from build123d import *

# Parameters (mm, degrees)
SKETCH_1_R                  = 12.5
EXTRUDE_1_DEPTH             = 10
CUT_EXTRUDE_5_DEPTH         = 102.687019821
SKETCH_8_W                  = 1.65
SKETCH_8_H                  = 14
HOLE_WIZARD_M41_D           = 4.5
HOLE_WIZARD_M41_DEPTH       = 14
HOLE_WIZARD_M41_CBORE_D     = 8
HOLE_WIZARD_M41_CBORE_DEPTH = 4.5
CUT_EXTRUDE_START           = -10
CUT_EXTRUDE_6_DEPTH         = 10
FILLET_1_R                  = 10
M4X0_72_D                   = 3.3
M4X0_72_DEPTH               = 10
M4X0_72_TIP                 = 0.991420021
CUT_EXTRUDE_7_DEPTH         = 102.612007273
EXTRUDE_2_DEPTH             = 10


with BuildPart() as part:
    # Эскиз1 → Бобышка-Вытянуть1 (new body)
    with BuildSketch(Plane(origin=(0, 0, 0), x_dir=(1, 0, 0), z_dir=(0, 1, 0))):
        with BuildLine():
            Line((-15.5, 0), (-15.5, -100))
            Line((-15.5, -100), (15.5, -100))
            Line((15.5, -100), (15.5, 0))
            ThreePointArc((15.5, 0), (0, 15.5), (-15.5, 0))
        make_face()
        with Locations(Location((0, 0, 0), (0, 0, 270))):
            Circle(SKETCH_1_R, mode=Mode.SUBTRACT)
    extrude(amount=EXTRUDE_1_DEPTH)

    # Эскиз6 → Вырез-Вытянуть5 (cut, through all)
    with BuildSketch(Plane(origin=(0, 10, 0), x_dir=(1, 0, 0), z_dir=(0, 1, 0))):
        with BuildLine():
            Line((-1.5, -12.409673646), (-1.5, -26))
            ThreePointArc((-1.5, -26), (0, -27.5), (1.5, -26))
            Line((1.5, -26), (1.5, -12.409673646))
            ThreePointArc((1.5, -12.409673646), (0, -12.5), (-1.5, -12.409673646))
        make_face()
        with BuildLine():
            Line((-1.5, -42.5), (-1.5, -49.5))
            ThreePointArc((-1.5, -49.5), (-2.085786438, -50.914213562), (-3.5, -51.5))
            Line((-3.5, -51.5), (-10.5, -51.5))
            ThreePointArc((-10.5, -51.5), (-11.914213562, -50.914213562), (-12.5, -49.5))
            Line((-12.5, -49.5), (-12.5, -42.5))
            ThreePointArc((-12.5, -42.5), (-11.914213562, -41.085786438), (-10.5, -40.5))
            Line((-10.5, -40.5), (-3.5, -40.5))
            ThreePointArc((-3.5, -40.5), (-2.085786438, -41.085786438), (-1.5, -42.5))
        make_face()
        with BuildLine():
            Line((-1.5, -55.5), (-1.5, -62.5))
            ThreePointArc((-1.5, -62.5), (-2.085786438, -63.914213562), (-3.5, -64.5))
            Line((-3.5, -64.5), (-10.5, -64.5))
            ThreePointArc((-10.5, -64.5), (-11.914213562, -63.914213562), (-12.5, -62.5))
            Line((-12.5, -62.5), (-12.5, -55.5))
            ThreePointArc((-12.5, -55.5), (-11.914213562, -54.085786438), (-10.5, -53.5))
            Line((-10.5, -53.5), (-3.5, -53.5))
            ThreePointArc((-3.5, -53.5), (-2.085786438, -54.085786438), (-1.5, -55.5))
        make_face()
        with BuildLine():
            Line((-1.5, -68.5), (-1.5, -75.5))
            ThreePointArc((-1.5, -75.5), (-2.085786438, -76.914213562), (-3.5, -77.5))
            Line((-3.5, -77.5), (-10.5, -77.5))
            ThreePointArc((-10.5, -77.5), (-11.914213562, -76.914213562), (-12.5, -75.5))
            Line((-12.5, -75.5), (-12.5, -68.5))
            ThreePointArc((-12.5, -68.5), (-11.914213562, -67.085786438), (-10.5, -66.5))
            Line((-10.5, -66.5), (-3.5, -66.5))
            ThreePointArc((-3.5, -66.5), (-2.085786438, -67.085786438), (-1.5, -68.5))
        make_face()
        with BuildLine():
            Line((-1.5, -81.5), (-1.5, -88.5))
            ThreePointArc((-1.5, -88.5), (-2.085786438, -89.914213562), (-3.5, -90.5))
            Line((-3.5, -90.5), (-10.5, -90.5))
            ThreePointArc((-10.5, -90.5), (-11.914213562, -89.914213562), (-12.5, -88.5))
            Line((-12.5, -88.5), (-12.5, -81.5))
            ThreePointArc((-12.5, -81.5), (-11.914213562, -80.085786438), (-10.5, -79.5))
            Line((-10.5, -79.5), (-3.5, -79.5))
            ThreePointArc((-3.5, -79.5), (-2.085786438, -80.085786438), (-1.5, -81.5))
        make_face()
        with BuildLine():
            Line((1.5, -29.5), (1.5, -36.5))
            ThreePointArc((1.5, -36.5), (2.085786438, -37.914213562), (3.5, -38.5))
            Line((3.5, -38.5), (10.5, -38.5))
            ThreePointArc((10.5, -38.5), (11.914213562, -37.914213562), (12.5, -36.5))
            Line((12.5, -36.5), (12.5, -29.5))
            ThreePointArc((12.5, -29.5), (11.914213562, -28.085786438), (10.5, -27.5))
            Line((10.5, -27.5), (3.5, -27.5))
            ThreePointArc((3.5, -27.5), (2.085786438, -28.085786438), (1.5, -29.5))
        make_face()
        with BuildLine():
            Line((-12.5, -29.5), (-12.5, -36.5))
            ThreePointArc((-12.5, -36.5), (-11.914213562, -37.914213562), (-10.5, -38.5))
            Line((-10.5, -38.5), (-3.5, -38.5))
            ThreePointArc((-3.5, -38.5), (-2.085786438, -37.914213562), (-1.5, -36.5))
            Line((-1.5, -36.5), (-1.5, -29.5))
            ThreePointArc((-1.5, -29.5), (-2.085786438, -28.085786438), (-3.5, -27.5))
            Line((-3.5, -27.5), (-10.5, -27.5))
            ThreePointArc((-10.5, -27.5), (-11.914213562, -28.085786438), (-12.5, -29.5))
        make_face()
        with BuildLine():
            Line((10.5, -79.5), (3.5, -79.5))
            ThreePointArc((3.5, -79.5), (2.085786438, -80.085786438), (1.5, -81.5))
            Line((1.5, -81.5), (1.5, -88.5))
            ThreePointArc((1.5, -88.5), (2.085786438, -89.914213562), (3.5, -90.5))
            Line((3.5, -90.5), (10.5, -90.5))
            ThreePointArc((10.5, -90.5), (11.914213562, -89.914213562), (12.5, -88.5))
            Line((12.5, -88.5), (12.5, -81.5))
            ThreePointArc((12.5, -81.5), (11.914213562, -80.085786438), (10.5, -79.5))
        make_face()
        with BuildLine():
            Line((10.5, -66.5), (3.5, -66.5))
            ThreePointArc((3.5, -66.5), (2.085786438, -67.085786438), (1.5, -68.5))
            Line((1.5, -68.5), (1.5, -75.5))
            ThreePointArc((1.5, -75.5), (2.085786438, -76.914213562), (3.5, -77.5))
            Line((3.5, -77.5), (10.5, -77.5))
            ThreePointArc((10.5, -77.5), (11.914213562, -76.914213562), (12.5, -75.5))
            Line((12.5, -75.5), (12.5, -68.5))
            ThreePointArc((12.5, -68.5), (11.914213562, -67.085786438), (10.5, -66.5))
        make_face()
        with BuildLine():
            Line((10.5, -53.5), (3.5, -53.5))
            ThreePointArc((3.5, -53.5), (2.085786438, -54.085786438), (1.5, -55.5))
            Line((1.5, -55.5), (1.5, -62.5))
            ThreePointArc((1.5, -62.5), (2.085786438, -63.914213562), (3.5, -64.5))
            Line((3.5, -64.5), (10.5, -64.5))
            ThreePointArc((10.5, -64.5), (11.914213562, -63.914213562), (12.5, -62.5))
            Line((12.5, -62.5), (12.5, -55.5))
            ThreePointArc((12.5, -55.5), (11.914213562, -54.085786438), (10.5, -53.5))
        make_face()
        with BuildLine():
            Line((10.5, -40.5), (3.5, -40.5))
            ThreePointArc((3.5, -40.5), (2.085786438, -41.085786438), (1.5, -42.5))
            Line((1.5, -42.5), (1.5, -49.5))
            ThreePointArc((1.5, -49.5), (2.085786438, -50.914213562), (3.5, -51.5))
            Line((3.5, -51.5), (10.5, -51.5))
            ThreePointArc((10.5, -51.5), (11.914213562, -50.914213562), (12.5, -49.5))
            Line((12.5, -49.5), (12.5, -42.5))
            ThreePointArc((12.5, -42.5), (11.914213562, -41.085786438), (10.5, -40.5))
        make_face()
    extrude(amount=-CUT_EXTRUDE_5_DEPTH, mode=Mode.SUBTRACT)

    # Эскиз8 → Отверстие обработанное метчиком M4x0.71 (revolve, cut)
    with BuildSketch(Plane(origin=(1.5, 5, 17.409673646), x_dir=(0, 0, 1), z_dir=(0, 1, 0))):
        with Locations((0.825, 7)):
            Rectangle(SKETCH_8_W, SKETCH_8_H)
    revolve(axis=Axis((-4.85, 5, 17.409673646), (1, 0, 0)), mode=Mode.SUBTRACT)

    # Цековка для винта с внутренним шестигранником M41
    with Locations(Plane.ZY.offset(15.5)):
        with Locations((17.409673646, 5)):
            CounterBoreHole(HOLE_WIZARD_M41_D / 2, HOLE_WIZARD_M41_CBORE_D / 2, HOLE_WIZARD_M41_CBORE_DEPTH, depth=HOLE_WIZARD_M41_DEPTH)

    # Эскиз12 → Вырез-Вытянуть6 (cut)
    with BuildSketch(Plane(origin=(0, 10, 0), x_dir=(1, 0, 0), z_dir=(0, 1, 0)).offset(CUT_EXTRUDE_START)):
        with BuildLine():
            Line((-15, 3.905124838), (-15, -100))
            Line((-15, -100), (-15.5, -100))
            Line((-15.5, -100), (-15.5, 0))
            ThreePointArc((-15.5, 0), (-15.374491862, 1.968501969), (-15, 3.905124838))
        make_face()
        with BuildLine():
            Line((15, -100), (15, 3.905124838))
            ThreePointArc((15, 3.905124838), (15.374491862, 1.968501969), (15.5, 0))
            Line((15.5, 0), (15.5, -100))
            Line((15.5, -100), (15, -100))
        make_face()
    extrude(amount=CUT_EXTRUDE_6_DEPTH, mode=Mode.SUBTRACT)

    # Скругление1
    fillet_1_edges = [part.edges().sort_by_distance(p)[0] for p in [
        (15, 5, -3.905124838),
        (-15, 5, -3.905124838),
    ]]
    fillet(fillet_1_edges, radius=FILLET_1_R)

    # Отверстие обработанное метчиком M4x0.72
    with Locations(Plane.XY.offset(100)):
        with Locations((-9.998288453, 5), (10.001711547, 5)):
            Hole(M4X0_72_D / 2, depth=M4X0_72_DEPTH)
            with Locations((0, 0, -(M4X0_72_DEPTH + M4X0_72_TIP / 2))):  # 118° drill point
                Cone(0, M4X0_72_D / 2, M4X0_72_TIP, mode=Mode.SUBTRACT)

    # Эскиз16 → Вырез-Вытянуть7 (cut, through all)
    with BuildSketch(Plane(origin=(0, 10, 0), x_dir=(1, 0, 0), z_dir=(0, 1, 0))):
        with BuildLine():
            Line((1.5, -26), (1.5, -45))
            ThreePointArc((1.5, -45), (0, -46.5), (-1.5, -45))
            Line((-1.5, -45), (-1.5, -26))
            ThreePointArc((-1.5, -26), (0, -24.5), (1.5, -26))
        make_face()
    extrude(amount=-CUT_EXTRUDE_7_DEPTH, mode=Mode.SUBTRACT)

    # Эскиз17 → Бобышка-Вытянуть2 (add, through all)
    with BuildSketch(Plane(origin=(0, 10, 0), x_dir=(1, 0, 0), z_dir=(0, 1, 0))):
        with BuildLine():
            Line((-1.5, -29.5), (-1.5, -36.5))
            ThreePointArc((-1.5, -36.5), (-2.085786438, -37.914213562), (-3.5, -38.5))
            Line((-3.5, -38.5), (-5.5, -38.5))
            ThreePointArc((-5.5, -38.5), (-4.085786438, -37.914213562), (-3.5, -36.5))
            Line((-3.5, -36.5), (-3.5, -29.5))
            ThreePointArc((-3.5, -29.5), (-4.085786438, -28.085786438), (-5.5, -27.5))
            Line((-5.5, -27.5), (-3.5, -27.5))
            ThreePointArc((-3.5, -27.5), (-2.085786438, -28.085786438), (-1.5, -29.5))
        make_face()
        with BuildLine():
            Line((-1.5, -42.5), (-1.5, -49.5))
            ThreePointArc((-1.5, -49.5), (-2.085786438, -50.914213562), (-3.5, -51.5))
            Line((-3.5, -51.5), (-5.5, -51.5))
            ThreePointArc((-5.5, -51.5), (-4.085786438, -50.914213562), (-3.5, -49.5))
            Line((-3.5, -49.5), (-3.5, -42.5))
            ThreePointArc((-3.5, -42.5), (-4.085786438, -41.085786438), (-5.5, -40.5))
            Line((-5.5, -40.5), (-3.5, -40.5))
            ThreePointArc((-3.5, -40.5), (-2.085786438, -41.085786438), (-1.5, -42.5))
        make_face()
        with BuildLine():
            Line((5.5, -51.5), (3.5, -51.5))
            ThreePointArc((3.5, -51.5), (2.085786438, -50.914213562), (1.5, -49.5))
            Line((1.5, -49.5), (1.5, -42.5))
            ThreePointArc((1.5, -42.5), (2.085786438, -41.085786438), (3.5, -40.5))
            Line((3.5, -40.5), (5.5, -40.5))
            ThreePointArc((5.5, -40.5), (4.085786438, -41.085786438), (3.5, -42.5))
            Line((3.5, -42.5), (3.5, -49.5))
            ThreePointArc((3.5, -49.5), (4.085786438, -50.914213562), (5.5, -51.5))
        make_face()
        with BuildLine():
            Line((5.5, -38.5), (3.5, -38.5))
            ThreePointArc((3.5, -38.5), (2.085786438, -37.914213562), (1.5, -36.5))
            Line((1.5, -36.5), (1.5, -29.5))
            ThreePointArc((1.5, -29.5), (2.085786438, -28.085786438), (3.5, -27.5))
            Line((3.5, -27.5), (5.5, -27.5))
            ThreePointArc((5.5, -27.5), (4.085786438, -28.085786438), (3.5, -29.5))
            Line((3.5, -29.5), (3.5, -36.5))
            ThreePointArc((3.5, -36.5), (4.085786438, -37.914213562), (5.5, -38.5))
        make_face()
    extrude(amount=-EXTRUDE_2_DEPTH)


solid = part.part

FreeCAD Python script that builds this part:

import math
import FreeCAD as App
import Part
import Sketcher

V = App.Vector
Q = App.Units.Quantity


def edges_at(feature, points):
    """Names of the edges that pass closest to the given points."""
    edges = feature.Shape.Edges
    near = lambda p: min(range(len(edges)), key=lambda i: edges[i].distToShape(Part.Vertex(*p))[0])
    return sorted({f"Edge{near(p) + 1}" for p in points})


def add_polygon(sketch, points):
    """Adds a closed chain of lines whose ends are joined by coincident constraints."""
    first, n = sketch.GeometryCount, len(points)
    for a, b in zip(points, points[1:] + points[:1]):
        sketch.addGeometry(Part.LineSegment(App.Vector(*a, 0), App.Vector(*b, 0)), False)
    for i in range(n):
        sketch.addConstraint(Sketcher.Constraint("Coincident", first + i, 2, first + (i + 1) % n, 1))

doc = App.newDocument("Part")
body = doc.addObject("PartDesign::Body", "Body")

# Sketch on XZ plane
sketch1 = body.newObject("Sketcher::SketchObject", "Sketch")
sketch1.AttachmentSupport = (doc.getObject("XZ_Plane"), [""])
sketch1.MapMode = "FlatFace"
sketch1.addGeometry(Part.LineSegment(V(-16, 0, 0), V(-16, 100, 0)), False)
sketch1.addGeometry(Part.LineSegment(V(-16, 100, 0), V(16, 100, 0)), False)
sketch1.addGeometry(Part.LineSegment(V(16, 100, 0), V(16, 0, 0)), False)
sketch1.addGeometry(Part.ArcOfCircle(Part.Circle(V(0, 0, 0), V(0, 0, 1), 16), math.radians(180), math.radians(360)), False)
sketch1.addGeometry(Part.Circle(V(0, 0, 0), V(0, 0, 1), 12), False)
sketch1.addConstraint(Sketcher.Constraint("Coincident", 0, 2, 1, 1))
sketch1.addConstraint(Sketcher.Constraint("Coincident", 1, 2, 2, 1))
sketch1.addConstraint(Sketcher.Constraint("Tangent", 2, 2, 3, 2))
sketch1.addConstraint(Sketcher.Constraint("Tangent", 3, 1, 0, 1))
sketch1.addConstraint(Sketcher.Constraint("Vertical", 0))
sketch1.addConstraint(Sketcher.Constraint("Horizontal", 1))
sketch1.addConstraint(Sketcher.Constraint("Vertical", 2))
sketch1.addConstraint(Sketcher.Constraint("Coincident", 3, 3, -1, 1))
sketch1.addConstraint(Sketcher.Constraint("Coincident", 4, 3, -1, 1))
sketch1.addConstraint(Sketcher.Constraint("Diameter", 4, Q("25 mm")))
sketch1.addConstraint(Sketcher.Constraint("Radius", 3, Q("15.5 mm")))
sketch1.addConstraint(Sketcher.Constraint("DistanceY", 0, 1, 0, 2, Q("100 mm")))
pad1 = body.newObject("PartDesign::Pad", "Pad")
pad1.Profile = sketch1
pad1.Length = 10
pad1.Reversed = True

# Sketch on XZ plane
sketch2 = body.newObject("Sketcher::SketchObject", "Sketch001")
sketch2.AttachmentSupport = (doc.getObject("XZ_Plane"), [""])
sketch2.MapMode = "FlatFace"
sketch2.AttachmentOffset = App.Placement(V(0, 0, -10), App.Rotation())
sketch2.addGeometry(Part.LineSegment(V(-1.5, 12.4, 0), V(-1.5, 26, 0)), False)
sketch2.addGeometry(Part.ArcOfCircle(Part.Circle(V(0, 26, 0), V(0, 0, 1), 1.5), math.radians(0), math.radians(180)), False)
sketch2.addGeometry(Part.LineSegment(V(1.5, 26, 0), V(1.5, 12.4, 0)), False)
sketch2.addGeometry(Part.ArcOfCircle(Part.Circle(V(0, 0, 0), V(0, 0, 1), 12.5), math.radians(83.11), math.radians(96.89)), False)
sketch2.addGeometry(Part.LineSegment(V(-1.5, 49.5, 0), V(-1.5, 42.5, 0)), False)
sketch2.addGeometry(Part.ArcOfCircle(Part.Circle(V(-3.5, 42.5, 0), V(0, 0, 1), 2), math.radians(-90), math.radians(0)), False)
sketch2.addGeometry(Part.LineSegment(V(-3.5, 40.5, 0), V(-10.5, 40.5, 0)), False)
sketch2.addGeometry(Part.ArcOfCircle(Part.Circle(V(-10.5, 42.5, 0), V(0, 0, 1), 2), math.radians(-180), math.radians(-90)), False)
sketch2.addGeometry(Part.LineSegment(V(-12.5, 42.5, 0), V(-12.5, 49.5, 0)), False)
sketch2.addGeometry(Part.ArcOfCircle(Part.Circle(V(-10.5, 49.5, 0), V(0, 0, 1), 2), math.radians(90), math.radians(180)), False)
sketch2.addGeometry(Part.LineSegment(V(-10.5, 51.5, 0), V(-3.5, 51.5, 0)), False)
sketch2.addGeometry(Part.ArcOfCircle(Part.Circle(V(-3.5, 49.5, 0), V(0, 0, 1), 2), math.radians(0), math.radians(90)), False)
sketch2.addGeometry(Part.LineSegment(V(-1.5, 62.5, 0), V(-1.5, 55.5, 0)), False)
sketch2.addGeometry(Part.ArcOfCircle(Part.Circle(V(-3.5, 55.5, 0), V(0, 0, 1), 2), math.radians(-90), math.radians(0)), False)
sketch2.addGeometry(Part.LineSegment(V(-3.5, 53.5, 0), V(-10.5, 53.5, 0)), False)
sketch2.addGeometry(Part.ArcOfCircle(Part.Circle(V(-10.5, 55.5, 0), V(0, 0, 1), 2), math.radians(-180), math.radians(-90)), False)
sketch2.addGeometry(Part.LineSegment(V(-12.5, 55.5, 0), V(-12.5, 62.5, 0)), False)
sketch2.addGeometry(Part.ArcOfCircle(Part.Circle(V(-10.5, 62.5, 0), V(0, 0, 1), 2), math.radians(90), math.radians(180)), False)
sketch2.addGeometry(Part.LineSegment(V(-10.5, 64.5, 0), V(-3.5, 64.5, 0)), False)
sketch2.addGeometry(Part.ArcOfCircle(Part.Circle(V(-3.5, 62.5, 0), V(0, 0, 1), 2), math.radians(0), math.radians(90)), False)
sketch2.addGeometry(Part.LineSegment(V(-1.5, 75.5, 0), V(-1.5, 68.5, 0)), False)
sketch2.addGeometry(Part.ArcOfCircle(Part.Circle(V(-3.5, 68.5, 0), V(0, 0, 1), 2), math.radians(-90), math.radians(0)), False)
sketch2.addGeometry(Part.LineSegment(V(-3.5, 66.5, 0), V(-10.5, 66.5, 0)), False)
sketch2.addGeometry(Part.ArcOfCircle(Part.Circle(V(-10.5, 68.5, 0), V(0, 0, 1), 2), math.radians(-180), math.radians(-90)), False)
sketch2.addGeometry(Part.LineSegment(V(-12.5, 68.5, 0), V(-12.5, 75.5, 0)), False)
sketch2.addGeometry(Part.ArcOfCircle(Part.Circle(V(-10.5, 75.5, 0), V(0, 0, 1), 2), math.radians(90), math.radians(180)), False)
sketch2.addGeometry(Part.LineSegment(V(-10.5, 77.5, 0), V(-3.5, 77.5, 0)), False)
sketch2.addGeometry(Part.ArcOfCircle(Part.Circle(V(-3.5, 75.5, 0), V(0, 0, 1), 2), math.radians(0), math.radians(90)), False)
sketch2.addGeometry(Part.LineSegment(V(-1.5, 88.5, 0), V(-1.5, 81.5, 0)), False)
sketch2.addGeometry(Part.ArcOfCircle(Part.Circle(V(-3.5, 81.5, 0), V(0, 0, 1), 2), math.radians(-90), math.radians(0)), False)
sketch2.addGeometry(Part.LineSegment(V(-3.5, 79.5, 0), V(-10.5, 79.5, 0)), False)
sketch2.addGeometry(Part.ArcOfCircle(Part.Circle(V(-10.5, 81.5, 0), V(0, 0, 1), 2), math.radians(-180), math.radians(-90)), False)
sketch2.addGeometry(Part.LineSegment(V(-12.5, 81.5, 0), V(-12.5, 88.5, 0)), False)
sketch2.addGeometry(Part.ArcOfCircle(Part.Circle(V(-10.5, 88.5, 0), V(0, 0, 1), 2), math.radians(90), math.radians(180)), False)
sketch2.addGeometry(Part.LineSegment(V(-10.5, 90.5, 0), V(-3.5, 90.5, 0)), False)
sketch2.addGeometry(Part.ArcOfCircle(Part.Circle(V(-3.5, 88.5, 0), V(0, 0, 1), 2), math.radians(0), math.radians(90)), False)
sketch2.addGeometry(Part.LineSegment(V(1.5, 29.5, 0), V(1.5, 36.5, 0)), False)
sketch2.addGeometry(Part.ArcOfCircle(Part.Circle(V(3.5, 36.5, 0), V(0, 0, 1), 2), math.radians(90), math.radians(180)), False)
sketch2.addGeometry(Part.LineSegment(V(3.5, 38.5, 0), V(10.5, 38.5, 0)), False)
sketch2.addGeometry(Part.ArcOfCircle(Part.Circle(V(10.5, 36.5, 0), V(0, 0, 1), 2), math.radians(0), math.radians(90)), False)
sketch2.addGeometry(Part.LineSegment(V(12.5, 36.5, 0), V(12.5, 29.5, 0)), False)
sketch2.addGeometry(Part.ArcOfCircle(Part.Circle(V(10.5, 29.5, 0), V(0, 0, 1), 2), math.radians(-90), math.radians(0)), False)
sketch2.addGeometry(Part.LineSegment(V(10.5, 27.5, 0), V(3.5, 27.5, 0)), False)
sketch2.addGeometry(Part.ArcOfCircle(Part.Circle(V(3.5, 29.5, 0), V(0, 0, 1), 2), math.radians(-180), math.radians(-90)), False)
sketch2.addGeometry(Part.LineSegment(V(-12.5, 29.5, 0), V(-12.5, 36.5, 0)), False)
sketch2.addGeometry(Part.ArcOfCircle(Part.Circle(V(-10.5, 36.5, 0), V(0, 0, 1), 2), math.radians(90), math.radians(180)), False)
sketch2.addGeometry(Part.LineSegment(V(-10.5, 38.5, 0), V(-3.5, 38.5, 0)), False)
sketch2.addGeometry(Part.ArcOfCircle(Part.Circle(V(-3.5, 36.5, 0), V(0, 0, 1), 2), math.radians(0), math.radians(90)), False)
sketch2.addGeometry(Part.LineSegment(V(-1.5, 36.5, 0), V(-1.5, 29.5, 0)), False)
sketch2.addGeometry(Part.ArcOfCircle(Part.Circle(V(-3.5, 29.5, 0), V(0, 0, 1), 2), math.radians(-90), math.radians(0)), False)
sketch2.addGeometry(Part.LineSegment(V(-3.5, 27.5, 0), V(-10.5, 27.5, 0)), False)
sketch2.addGeometry(Part.ArcOfCircle(Part.Circle(V(-10.5, 29.5, 0), V(0, 0, 1), 2), math.radians(-180), math.radians(-90)), False)
sketch2.addGeometry(Part.LineSegment(V(10.5, 79.5, 0), V(3.5, 79.5, 0)), False)
sketch2.addGeometry(Part.ArcOfCircle(Part.Circle(V(3.5, 81.5, 0), V(0, 0, 1), 2), math.radians(-180), math.radians(-90)), False)
sketch2.addGeometry(Part.LineSegment(V(1.5, 81.5, 0), V(1.5, 88.5, 0)), False)
sketch2.addGeometry(Part.ArcOfCircle(Part.Circle(V(3.5, 88.5, 0), V(0, 0, 1), 2), math.radians(90), math.radians(180)), False)
sketch2.addGeometry(Part.LineSegment(V(3.5, 90.5, 0), V(10.5, 90.5, 0)), False)
sketch2.addGeometry(Part.ArcOfCircle(Part.Circle(V(10.5, 88.5, 0), V(0, 0, 1), 2), math.radians(0), math.radians(90)), False)
sketch2.addGeometry(Part.LineSegment(V(12.5, 88.5, 0), V(12.5, 81.5, 0)), False)
sketch2.addGeometry(Part.ArcOfCircle(Part.Circle(V(10.5, 81.5, 0), V(0, 0, 1), 2), math.radians(-90), math.radians(0)), False)
sketch2.addGeometry(Part.LineSegment(V(10.5, 66.5, 0), V(3.5, 66.5, 0)), False)
sketch2.addGeometry(Part.ArcOfCircle(Part.Circle(V(3.5, 68.5, 0), V(0, 0, 1), 2), math.radians(-180), math.radians(-90)), False)
sketch2.addGeometry(Part.LineSegment(V(1.5, 68.5, 0), V(1.5, 75.5, 0)), False)
sketch2.addGeometry(Part.ArcOfCircle(Part.Circle(V(3.5, 75.5, 0), V(0, 0, 1), 2), math.radians(90), math.radians(180)), False)
sketch2.addGeometry(Part.LineSegment(V(3.5, 77.5, 0), V(10.5, 77.5, 0)), False)
sketch2.addGeometry(Part.ArcOfCircle(Part.Circle(V(10.5, 75.5, 0), V(0, 0, 1), 2), math.radians(0), math.radians(90)), False)
sketch2.addGeometry(Part.LineSegment(V(12.5, 75.5, 0), V(12.5, 68.5, 0)), False)
sketch2.addGeometry(Part.ArcOfCircle(Part.Circle(V(10.5, 68.5, 0), V(0, 0, 1), 2), math.radians(-90), math.radians(0)), False)
sketch2.addGeometry(Part.LineSegment(V(10.5, 53.5, 0), V(3.5, 53.5, 0)), False)
sketch2.addGeometry(Part.ArcOfCircle(Part.Circle(V(3.5, 55.5, 0), V(0, 0, 1), 2), math.radians(-180), math.radians(-90)), False)
sketch2.addGeometry(Part.LineSegment(V(1.5, 55.5, 0), V(1.5, 62.5, 0)), False)
sketch2.addGeometry(Part.ArcOfCircle(Part.Circle(V(3.5, 62.5, 0), V(0, 0, 1), 2), math.radians(90), math.radians(180)), False)
sketch2.addGeometry(Part.LineSegment(V(3.5, 64.5, 0), V(10.5, 64.5, 0)), False)
sketch2.addGeometry(Part.ArcOfCircle(Part.Circle(V(10.5, 62.5, 0), V(0, 0, 1), 2), math.radians(0), math.radians(90)), False)
sketch2.addGeometry(Part.LineSegment(V(12.5, 62.5, 0), V(12.5, 55.5, 0)), False)
sketch2.addGeometry(Part.ArcOfCircle(Part.Circle(V(10.5, 55.5, 0), V(0, 0, 1), 2), math.radians(-90), math.radians(0)), False)
sketch2.addGeometry(Part.LineSegment(V(10.5, 40.5, 0), V(3.5, 40.5, 0)), False)
sketch2.addGeometry(Part.ArcOfCircle(Part.Circle(V(3.5, 42.5, 0), V(0, 0, 1), 2), math.radians(-180), math.radians(-90)), False)
sketch2.addGeometry(Part.LineSegment(V(1.5, 42.5, 0), V(1.5, 49.5, 0)), False)
sketch2.addGeometry(Part.ArcOfCircle(Part.Circle(V(3.5, 49.5, 0), V(0, 0, 1), 2), math.radians(90), math.radians(180)), False)
sketch2.addGeometry(Part.LineSegment(V(3.5, 51.5, 0), V(10.5, 51.5, 0)), False)
sketch2.addGeometry(Part.ArcOfCircle(Part.Circle(V(10.5, 49.5, 0), V(0, 0, 1), 2), math.radians(0), math.radians(90)), False)
sketch2.addGeometry(Part.LineSegment(V(12.5, 49.5, 0), V(12.5, 42.5, 0)), False)
sketch2.addGeometry(Part.ArcOfCircle(Part.Circle(V(10.5, 42.5, 0), V(0, 0, 1), 2), math.radians(-90), math.radians(0)), False)
sketch2.addConstraint(Sketcher.Constraint("Tangent", 0, 2, 1, 2))
sketch2.addConstraint(Sketcher.Constraint("Tangent", 1, 1, 2, 1))
sketch2.addConstraint(Sketcher.Constraint("Coincident", 2, 2, 3, 1))
sketch2.addConstraint(Sketcher.Constraint("Coincident", 3, 2, 0, 1))
sketch2.addConstraint(Sketcher.Constraint("Tangent", 4, 2, 5, 2))
sketch2.addConstraint(Sketcher.Constraint("Tangent", 5, 1, 6, 1))
sketch2.addConstraint(Sketcher.Constraint("Tangent", 6, 2, 7, 2))
sketch2.addConstraint(Sketcher.Constraint("Tangent", 7, 1, 8, 1))
sketch2.addConstraint(Sketcher.Constraint("Tangent", 8, 2, 9, 2))
sketch2.addConstraint(Sketcher.Constraint("Tangent", 9, 1, 10, 1))
sketch2.addConstraint(Sketcher.Constraint("Tangent", 10, 2, 11, 2))
sketch2.addConstraint(Sketcher.Constraint("Tangent", 11, 1, 4, 1))
sketch2.addConstraint(Sketcher.Constraint("Tangent", 12, 2, 13, 2))
sketch2.addConstraint(Sketcher.Constraint("Tangent", 13, 1, 14, 1))
sketch2.addConstraint(Sketcher.Constraint("Tangent", 14, 2, 15, 2))
sketch2.addConstraint(Sketcher.Constraint("Tangent", 15, 1, 16, 1))
sketch2.addConstraint(Sketcher.Constraint("Tangent", 16, 2, 17, 2))
sketch2.addConstraint(Sketcher.Constraint("Tangent", 17, 1, 18, 1))
sketch2.addConstraint(Sketcher.Constraint("Tangent", 18, 2, 19, 2))
sketch2.addConstraint(Sketcher.Constraint("Tangent", 19, 1, 12, 1))
sketch2.addConstraint(Sketcher.Constraint("Tangent", 20, 2, 21, 2))
sketch2.addConstraint(Sketcher.Constraint("Tangent", 21, 1, 22, 1))
sketch2.addConstraint(Sketcher.Constraint("Tangent", 22, 2, 23, 2))
sketch2.addConstraint(Sketcher.Constraint("Tangent", 23, 1, 24, 1))
sketch2.addConstraint(Sketcher.Constraint("Tangent", 24, 2, 25, 2))
sketch2.addConstraint(Sketcher.Constraint("Tangent", 25, 1, 26, 1))
sketch2.addConstraint(Sketcher.Constraint("Tangent", 26, 2, 27, 2))
sketch2.addConstraint(Sketcher.Constraint("Tangent", 27, 1, 20, 1))
sketch2.addConstraint(Sketcher.Constraint("Tangent", 28, 2, 29, 2))
sketch2.addConstraint(Sketcher.Constraint("Tangent", 29, 1, 30, 1))
sketch2.addConstraint(Sketcher.Constraint("Tangent", 30, 2, 31, 2))
sketch2.addConstraint(Sketcher.Constraint("Tangent", 31, 1, 32, 1))
sketch2.addConstraint(Sketcher.Constraint("Tangent", 32, 2, 33, 2))
sketch2.addConstraint(Sketcher.Constraint("Tangent", 33, 1, 34, 1))
sketch2.addConstraint(Sketcher.Constraint("Tangent", 34, 2, 35, 2))
sketch2.addConstraint(Sketcher.Constraint("Tangent", 35, 1, 28, 1))
sketch2.addConstraint(Sketcher.Constraint("Tangent", 36, 2, 37, 2))
sketch2.addConstraint(Sketcher.Constraint("Tangent", 37, 1, 38, 1))
sketch2.addConstraint(Sketcher.Constraint("Tangent", 38, 2, 39, 2))
sketch2.addConstraint(Sketcher.Constraint("Tangent", 39, 1, 40, 1))
sketch2.addConstraint(Sketcher.Constraint("Tangent", 40, 2, 41, 2))
sketch2.addConstraint(Sketcher.Constraint("Tangent", 41, 1, 42, 1))
sketch2.addConstraint(Sketcher.Constraint("Tangent", 42, 2, 43, 2))
sketch2.addConstraint(Sketcher.Constraint("Tangent", 43, 1, 36, 1))
sketch2.addConstraint(Sketcher.Constraint("Tangent", 44, 2, 45, 2))
sketch2.addConstraint(Sketcher.Constraint("Tangent", 45, 1, 46, 1))
sketch2.addConstraint(Sketcher.Constraint("Tangent", 46, 2, 47, 2))
sketch2.addConstraint(Sketcher.Constraint("Tangent", 47, 1, 48, 1))
sketch2.addConstraint(Sketcher.Constraint("Tangent", 48, 2, 49, 2))
sketch2.addConstraint(Sketcher.Constraint("Tangent", 49, 1, 50, 1))
sketch2.addConstraint(Sketcher.Constraint("Tangent", 50, 2, 51, 2))
sketch2.addConstraint(Sketcher.Constraint("Tangent", 51, 1, 44, 1))
sketch2.addConstraint(Sketcher.Constraint("Tangent", 52, 2, 53, 2))
sketch2.addConstraint(Sketcher.Constraint("Tangent", 53, 1, 54, 1))
sketch2.addConstraint(Sketcher.Constraint("Tangent", 54, 2, 55, 2))
sketch2.addConstraint(Sketcher.Constraint("Tangent", 55, 1, 56, 1))
sketch2.addConstraint(Sketcher.Constraint("Tangent", 56, 2, 57, 2))
sketch2.addConstraint(Sketcher.Constraint("Tangent", 57, 1, 58, 1))
sketch2.addConstraint(Sketcher.Constraint("Tangent", 58, 2, 59, 2))
sketch2.addConstraint(Sketcher.Constraint("Tangent", 59, 1, 52, 1))
sketch2.addConstraint(Sketcher.Constraint("Tangent", 60, 2, 61, 2))
sketch2.addConstraint(Sketcher.Constraint("Tangent", 61, 1, 62, 1))
sketch2.addConstraint(Sketcher.Constraint("Tangent", 62, 2, 63, 2))
sketch2.addConstraint(Sketcher.Constraint("Tangent", 63, 1, 64, 1))
sketch2.addConstraint(Sketcher.Constraint("Tangent", 64, 2, 65, 2))
sketch2.addConstraint(Sketcher.Constraint("Tangent", 65, 1, 66, 1))
sketch2.addConstraint(Sketcher.Constraint("Tangent", 66, 2, 67, 2))
sketch2.addConstraint(Sketcher.Constraint("Tangent", 67, 1, 60, 1))
sketch2.addConstraint(Sketcher.Constraint("Tangent", 68, 2, 69, 2))
sketch2.addConstraint(Sketcher.Constraint("Tangent", 69, 1, 70, 1))
sketch2.addConstraint(Sketcher.Constraint("Tangent", 70, 2, 71, 2))
sketch2.addConstraint(Sketcher.Constraint("Tangent", 71, 1, 72, 1))
sketch2.addConstraint(Sketcher.Constraint("Tangent", 72, 2, 73, 2))
sketch2.addConstraint(Sketcher.Constraint("Tangent", 73, 1, 74, 1))
sketch2.addConstraint(Sketcher.Constraint("Tangent", 74, 2, 75, 2))
sketch2.addConstraint(Sketcher.Constraint("Tangent", 75, 1, 68, 1))
sketch2.addConstraint(Sketcher.Constraint("Tangent", 76, 2, 77, 2))
sketch2.addConstraint(Sketcher.Constraint("Tangent", 77, 1, 78, 1))
sketch2.addConstraint(Sketcher.Constraint("Tangent", 78, 2, 79, 2))
sketch2.addConstraint(Sketcher.Constraint("Tangent", 79, 1, 80, 1))
sketch2.addConstraint(Sketcher.Constraint("Tangent", 80, 2, 81, 2))
sketch2.addConstraint(Sketcher.Constraint("Tangent", 81, 1, 82, 1))
sketch2.addConstraint(Sketcher.Constraint("Tangent", 82, 2, 83, 2))
sketch2.addConstraint(Sketcher.Constraint("Tangent", 83, 1, 76, 1))
sketch2.addConstraint(Sketcher.Constraint("Vertical", 0))
sketch2.addConstraint(Sketcher.Constraint("Vertical", 2))
sketch2.addConstraint(Sketcher.Constraint("Vertical", 4))
sketch2.addConstraint(Sketcher.Constraint("Horizontal", 6))
sketch2.addConstraint(Sketcher.Constraint("Vertical", 8))
sketch2.addConstraint(Sketcher.Constraint("Horizontal", 10))
sketch2.addConstraint(Sketcher.Constraint("Vertical", 12))
sketch2.addConstraint(Sketcher.Constraint("Horizontal", 14))
sketch2.addConstraint(Sketcher.Constraint("Vertical", 16))
sketch2.addConstraint(Sketcher.Constraint("Horizontal", 18))
sketch2.addConstraint(Sketcher.Constraint("Vertical", 20))
sketch2.addConstraint(Sketcher.Constraint("Horizontal", 22))
sketch2.addConstraint(Sketcher.Constraint("Vertical", 24))
sketch2.addConstraint(Sketcher.Constraint("Horizontal", 26))
sketch2.addConstraint(Sketcher.Constraint("Vertical", 28))
sketch2.addConstraint(Sketcher.Constraint("Horizontal", 30))
sketch2.addConstraint(Sketcher.Constraint("Vertical", 32))
sketch2.addConstraint(Sketcher.Constraint("Horizontal", 34))
sketch2.addConstraint(Sketcher.Constraint("Vertical", 36))
sketch2.addConstraint(Sketcher.Constraint("Horizontal", 38))
sketch2.addConstraint(Sketcher.Constraint("Vertical", 40))
sketch2.addConstraint(Sketcher.Constraint("Horizontal", 42))
sketch2.addConstraint(Sketcher.Constraint("Vertical", 44))
sketch2.addConstraint(Sketcher.Constraint("Horizontal", 46))
sketch2.addConstraint(Sketcher.Constraint("Vertical", 48))
sketch2.addConstraint(Sketcher.Constraint("Horizontal", 50))
sketch2.addConstraint(Sketcher.Constraint("Horizontal", 52))
sketch2.addConstraint(Sketcher.Constraint("Vertical", 54))
sketch2.addConstraint(Sketcher.Constraint("Horizontal", 56))
sketch2.addConstraint(Sketcher.Constraint("Vertical", 58))
sketch2.addConstraint(Sketcher.Constraint("Horizontal", 60))
sketch2.addConstraint(Sketcher.Constraint("Vertical", 62))
sketch2.addConstraint(Sketcher.Constraint("Horizontal", 64))
sketch2.addConstraint(Sketcher.Constraint("Vertical", 66))
sketch2.addConstraint(Sketcher.Constraint("Horizontal", 68))
sketch2.addConstraint(Sketcher.Constraint("Vertical", 70))
sketch2.addConstraint(Sketcher.Constraint("Horizontal", 72))
sketch2.addConstraint(Sketcher.Constraint("Vertical", 74))
sketch2.addConstraint(Sketcher.Constraint("Horizontal", 76))
sketch2.addConstraint(Sketcher.Constraint("Vertical", 78))
sketch2.addConstraint(Sketcher.Constraint("Horizontal", 80))
sketch2.addConstraint(Sketcher.Constraint("Vertical", 82))
sketch2.addConstraint(Sketcher.Constraint("Coincident", 3, 3, -1, 1))
sketch2.addConstraint(Sketcher.Constraint("Equal", 5, 7))
sketch2.addConstraint(Sketcher.Constraint("Equal", 7, 9))
sketch2.addConstraint(Sketcher.Constraint("Equal", 9, 11))
sketch2.addConstraint(Sketcher.Constraint("Equal", 11, 13))
sketch2.addConstraint(Sketcher.Constraint("Equal", 13, 15))
sketch2.addConstraint(Sketcher.Constraint("Equal", 15, 17))
sketch2.addConstraint(Sketcher.Constraint("Equal", 17, 19))
sketch2.addConstraint(Sketcher.Constraint("Equal", 19, 21))
sketch2.addConstraint(Sketcher.Constraint("Equal", 21, 23))
sketch2.addConstraint(Sketcher.Constraint("Equal", 23, 25))
sketch2.addConstraint(Sketcher.Constraint("Equal", 25, 27))
sketch2.addConstraint(Sketcher.Constraint("Equal", 27, 29))
sketch2.addConstraint(Sketcher.Constraint("Equal", 29, 31))
sketch2.addConstraint(Sketcher.Constraint("Equal", 31, 33))
sketch2.addConstraint(Sketcher.Constraint("Equal", 33, 35))
sketch2.addConstraint(Sketcher.Constraint("Equal", 35, 37))
sketch2.addConstraint(Sketcher.Constraint("Equal", 37, 39))
sketch2.addConstraint(Sketcher.Constraint("Equal", 39, 41))
sketch2.addConstraint(Sketcher.Constraint("Equal", 41, 43))
sketch2.addConstraint(Sketcher.Constraint("Equal", 43, 45))
sketch2.addConstraint(Sketcher.Constraint("Equal", 45, 47))
sketch2.addConstraint(Sketcher.Constraint("Equal", 47, 49))
sketch2.addConstraint(Sketcher.Constraint("Equal", 49, 51))
sketch2.addConstraint(Sketcher.Constraint("Equal", 51, 53))
sketch2.addConstraint(Sketcher.Constraint("Equal", 53, 55))
sketch2.addConstraint(Sketcher.Constraint("Equal", 55, 57))
sketch2.addConstraint(Sketcher.Constraint("Equal", 57, 59))
sketch2.addConstraint(Sketcher.Constraint("Equal", 59, 61))
sketch2.addConstraint(Sketcher.Constraint("Equal", 61, 63))
sketch2.addConstraint(Sketcher.Constraint("Equal", 63, 65))
sketch2.addConstraint(Sketcher.Constraint("Equal", 65, 67))
sketch2.addConstraint(Sketcher.Constraint("Equal", 67, 69))
sketch2.addConstraint(Sketcher.Constraint("Equal", 69, 71))
sketch2.addConstraint(Sketcher.Constraint("Equal", 71, 73))
sketch2.addConstraint(Sketcher.Constraint("Equal", 73, 75))
sketch2.addConstraint(Sketcher.Constraint("Equal", 75, 77))
sketch2.addConstraint(Sketcher.Constraint("Equal", 77, 79))
sketch2.addConstraint(Sketcher.Constraint("Equal", 79, 81))
sketch2.addConstraint(Sketcher.Constraint("Equal", 81, 83))
sketch2.addConstraint(Sketcher.Constraint("Symmetric", 39, 3, 45, 3, -2))
sketch2.addConstraint(Sketcher.Constraint("Symmetric", 43, 3, 49, 3, -2))
sketch2.addConstraint(Sketcher.Constraint("Symmetric", 29, 3, 53, 3, -2))
sketch2.addConstraint(Sketcher.Constraint("Symmetric", 33, 3, 57, 3, -2))
sketch2.addConstraint(Sketcher.Constraint("Symmetric", 21, 3, 61, 3, -2))
sketch2.addConstraint(Sketcher.Constraint("Symmetric", 25, 3, 65, 3, -2))
sketch2.addConstraint(Sketcher.Constraint("Symmetric", 13, 3, 69, 3, -2))
sketch2.addConstraint(Sketcher.Constraint("Symmetric", 17, 3, 73, 3, -2))
sketch2.addConstraint(Sketcher.Constraint("Symmetric", 5, 3, 77, 3, -2))
sketch2.addConstraint(Sketcher.Constraint("Symmetric", 9, 3, 81, 3, -2))
sketch2.addConstraint(Sketcher.Constraint("PointOnObject", 1, 3, -2))
sketch2.addConstraint(Sketcher.Constraint("Vertical", 11, 3, 13, 3))
sketch2.addConstraint(Sketcher.Constraint("Vertical", 9, 3, 15, 3))
sketch2.addConstraint(Sketcher.Constraint("Vertical", 19, 3, 21, 3))
sketch2.addConstraint(Sketcher.Constraint("Vertical", 17, 3, 23, 3))
sketch2.addConstraint(Sketcher.Constraint("Vertical", 27, 3, 29, 3))
sketch2.addConstraint(Sketcher.Constraint("Vertical", 25, 3, 31, 3))
sketch2.addConstraint(Sketcher.Constraint("Vertical", 33, 3, 45, 3))
sketch2.addConstraint(Sketcher.Constraint("Vertical", 35, 3, 47, 3))
sketch2.addConstraint(Sketcher.Constraint("Vertical", 3, 2, 4, 2))
sketch2.addConstraint(Sketcher.Constraint("Equal", 80, 4))
sketch2.addConstraint(Sketcher.Constraint("Equal", 8, 12))
sketch2.addConstraint(Sketcher.Constraint("Equal", 16, 20))
sketch2.addConstraint(Sketcher.Constraint("Equal", 24, 28))
sketch2.addConstraint(Sketcher.Constraint("Equal", 32, 36))
sketch2.addConstraint(Sketcher.Constraint("Radius", 5, Q("2 mm")))
sketch2.addConstraint(Sketcher.Constraint("Radius", 1, Q("1.5 mm")))
sketch2.addConstraint(Sketcher.Constraint("Radius", 3, Q("12.5 mm")))
sketch2.addConstraint(Sketcher.Constraint("DistanceX", 6, 2, 6, 1, Q("7 mm")))
sketch2.addConstraint(Sketcher.Constraint("DistanceY", -1, 1, 1, 3, Q("26 mm")))
sketch2.addConstraint(Sketcher.Constraint("DistanceY", -1, 1, 5, 3, Q("42.5 mm")))
sketch2.addConstraint(Sketcher.Constraint("DistanceY", -1, 1, 13, 3, Q("55.5 mm")))
sketch2.addConstraint(Sketcher.Constraint("DistanceY", -1, 1, 21, 3, Q("68.5 mm")))
sketch2.addConstraint(Sketcher.Constraint("DistanceY", -1, 1, 29, 3, Q("81.5 mm")))
sketch2.addConstraint(Sketcher.Constraint("DistanceY", -1, 1, 37, 3, Q("36.5 mm")))
pocket1 = body.newObject("PartDesign::Pocket", "Pocket")
pocket1.Profile = sketch2
pocket1.Type = "ThroughAll"
pocket1.Reversed = True

# Sketch on XZ plane
sketch3 = body.newObject("Sketcher::SketchObject", "Sketch002")
sketch3.AttachmentSupport = (doc.getObject("XZ_Plane"), [""])
sketch3.MapMode = "FlatFace"
sketch3.AttachmentOffset = App.Placement(V(0, 0, -5), App.Rotation())
add_polygon(sketch3, [(15.5, 17.4), (1.5, 17.4), (1.5, 19.1), (15.5, 19.1)])  # lines 0-3
sketch3.addGeometry(Part.LineSegment(V(1.5, 17.4, 0), V(15.5, 17.4, 0)), True)  # axis
sketch3.addConstraint(Sketcher.Constraint("Horizontal", 0))
sketch3.addConstraint(Sketcher.Constraint("Vertical", 1))
sketch3.addConstraint(Sketcher.Constraint("Horizontal", 2))
sketch3.addConstraint(Sketcher.Constraint("Vertical", 3))
sketch3.addConstraint(Sketcher.Constraint("Horizontal", 4))
sketch3.addConstraint(Sketcher.Constraint("Coincident", 4, 1, 0, 2))
sketch3.addConstraint(Sketcher.Constraint("Vertical", 2, 2, 4, 2))
sketch3.addConstraint(Sketcher.Constraint("DistanceX", 0, 2, 0, 1, Q("14 mm")))
sketch3.addConstraint(Sketcher.Constraint("DistanceY", 1, 1, 1, 2, Q("1.65 mm")))
sketch3.addConstraint(Sketcher.Constraint("DistanceX", -1, 1, 0, 2, Q("1.5 mm")))
sketch3.addConstraint(Sketcher.Constraint("DistanceY", -1, 1, 0, 2, Q("17.409674 mm")))
groove = body.newObject("PartDesign::Groove", "Groove")
groove.Profile = sketch3
groove.ReferenceAxis = (sketch3, ["Axis0"])
groove.Angle = 360

# Sketch on YZ plane
sketch4 = body.newObject("Sketcher::SketchObject", "Sketch003")
sketch4.AttachmentSupport = (doc.getObject("YZ_Plane"), [""])
sketch4.MapMode = "FlatFace"
sketch4.AttachmentOffset = App.Placement(V(0, 0, -15.5), App.Rotation())
sketch4.addGeometry(Part.Circle(V(5, 17.4, 0), V(0, 0, 1), 2.2), False)
sketch4.addConstraint(Sketcher.Constraint("Diameter", 0, Q("4.5 mm")))
sketch4.addConstraint(Sketcher.Constraint("DistanceX", -1, 1, 0, 3, Q("5 mm")))
sketch4.addConstraint(Sketcher.Constraint("DistanceY", -1, 1, 0, 3, Q("17.409674 mm")))
doc.recompute()
hole = body.newObject("PartDesign::Hole", "Hole")
hole.Profile = sketch4
hole.ThreadType = "None"
hole.Diameter = 4.5
hole.DepthType = "Dimension"
hole.Depth = 14
hole.DrillPoint = "Flat"
hole.HoleCutType = "Counterbore"
hole.HoleCutDiameter = 8
hole.HoleCutDepth = 4.5
hole.Reversed = True

# Sketch on XZ plane
sketch5 = body.newObject("Sketcher::SketchObject", "Sketch004")
sketch5.AttachmentSupport = (doc.getObject("XZ_Plane"), [""])
sketch5.MapMode = "FlatFace"
sketch5.addGeometry(Part.LineSegment(V(-15, 100, 0), V(-15, -3.9, 0)), False)
sketch5.addGeometry(Part.ArcOfCircle(Part.Circle(V(0, 0, 0), V(0, 0, 1), 15.5), math.radians(180), math.radians(194.59)), False)
sketch5.addGeometry(Part.LineSegment(V(-15.5, 0, 0), V(-15.5, 100, 0)), False)
sketch5.addGeometry(Part.LineSegment(V(-15.5, 100, 0), V(-15, 100, 0)), False)
sketch5.addGeometry(Part.LineSegment(V(15, -3.9, 0), V(15, 100, 0)), False)
sketch5.addGeometry(Part.LineSegment(V(15, 100, 0), V(15.5, 100, 0)), False)
sketch5.addGeometry(Part.LineSegment(V(15.5, 100, 0), V(15.5, 0, 0)), False)
sketch5.addGeometry(Part.ArcOfCircle(Part.Circle(V(0, 0, 0), V(0, 0, 1), 15.5), math.radians(-14.59), math.radians(0)), False)
sketch5.addConstraint(Sketcher.Constraint("Coincident", 0, 2, 1, 2))
sketch5.addConstraint(Sketcher.Constraint("Tangent", 1, 1, 2, 1))
sketch5.addConstraint(Sketcher.Constraint("Coincident", 2, 2, 3, 1))
sketch5.addConstraint(Sketcher.Constraint("Coincident", 3, 2, 0, 1))
sketch5.addConstraint(Sketcher.Constraint("Coincident", 4, 2, 5, 1))
sketch5.addConstraint(Sketcher.Constraint("Coincident", 5, 2, 6, 1))
sketch5.addConstraint(Sketcher.Constraint("Tangent", 6, 2, 7, 2))
sketch5.addConstraint(Sketcher.Constraint("Coincident", 7, 1, 4, 1))
sketch5.addConstraint(Sketcher.Constraint("Vertical", 0))
sketch5.addConstraint(Sketcher.Constraint("Vertical", 2))
sketch5.addConstraint(Sketcher.Constraint("Horizontal", 3))
sketch5.addConstraint(Sketcher.Constraint("Vertical", 4))
sketch5.addConstraint(Sketcher.Constraint("Horizontal", 5))
sketch5.addConstraint(Sketcher.Constraint("Vertical", 6))
sketch5.addConstraint(Sketcher.Constraint("Coincident", 1, 3, -1, 1))
sketch5.addConstraint(Sketcher.Constraint("Coincident", 7, 3, -1, 1))
sketch5.addConstraint(Sketcher.Constraint("Equal", 1, 7))
sketch5.addConstraint(Sketcher.Constraint("Symmetric", 3, 2, 4, 2, -2))
sketch5.addConstraint(Sketcher.Constraint("Radius", 1, Q("15.5 mm")))
sketch5.addConstraint(Sketcher.Constraint("DistanceY", 2, 1, 2, 2, Q("100 mm")))
sketch5.addConstraint(Sketcher.Constraint("DistanceX", 3, 1, 3, 2, Q("0.5 mm")))
pocket2 = body.newObject("PartDesign::Pocket", "Pocket001")
pocket2.Profile = sketch5
pocket2.Length = 10
doc.recompute()

fillet = body.newObject("PartDesign::Fillet", "Fillet")
fillet.Base = (pocket2, edges_at(pocket2, [(15, 5, -3.905), (-15, 5, -3.905)]))
fillet.Radius = 10

# Sketch on XY plane
sketch6 = body.newObject("Sketcher::SketchObject", "Sketch005")
sketch6.AttachmentSupport = (doc.getObject("XY_Plane"), [""])
sketch6.MapMode = "FlatFace"
sketch6.AttachmentOffset = App.Placement(V(0, 0, 100), App.Rotation())
sketch6.addGeometry(Part.Circle(V(-10, 5, 0), V(0, 0, 1), 1.6), False)
sketch6.addGeometry(Part.Circle(V(10, 5, 0), V(0, 0, 1), 1.6), False)
sketch6.addConstraint(Sketcher.Constraint("Equal", 0, 1))
sketch6.addConstraint(Sketcher.Constraint("Horizontal", 0, 3, 1, 3))
sketch6.addConstraint(Sketcher.Constraint("Diameter", 0, Q("3.3 mm")))
sketch6.addConstraint(Sketcher.Constraint("DistanceY", -1, 1, 0, 3, Q("5 mm")))
sketch6.addConstraint(Sketcher.Constraint("DistanceX", 0, 3, 1, 3, Q("20 mm")))
sketch6.addConstraint(Sketcher.Constraint("DistanceX", 0, 3, -1, 1, Q("9.998288 mm")))
doc.recompute()
hole2 = body.newObject("PartDesign::Hole", "Hole001")
hole2.Profile = sketch6
hole2.ThreadType = "None"
hole2.Diameter = 3.3
hole2.DepthType = "Dimension"
hole2.Depth = 10
hole2.DrillPoint = "Angled"
hole2.DrillPointAngle = 118

# Sketch on XZ plane
sketch7 = body.newObject("Sketcher::SketchObject", "Sketch006")
sketch7.AttachmentSupport = (doc.getObject("XZ_Plane"), [""])
sketch7.MapMode = "FlatFace"
sketch7.AttachmentOffset = App.Placement(V(0, 0, -10), App.Rotation())
sketch7.addGeometry(Part.LineSegment(V(1.5, 45, 0), V(1.5, 26, 0)), False)
sketch7.addGeometry(Part.ArcOfCircle(Part.Circle(V(0, 26, 0), V(0, 0, 1), 1.5), math.radians(180), math.radians(360)), False)
sketch7.addGeometry(Part.LineSegment(V(-1.5, 26, 0), V(-1.5, 45, 0)), False)
sketch7.addGeometry(Part.ArcOfCircle(Part.Circle(V(0, 45, 0), V(0, 0, 1), 1.5), math.radians(0), math.radians(180)), False)
sketch7.addConstraint(Sketcher.Constraint("Tangent", 0, 2, 1, 2))
sketch7.addConstraint(Sketcher.Constraint("Tangent", 1, 1, 2, 1))
sketch7.addConstraint(Sketcher.Constraint("Tangent", 2, 2, 3, 2))
sketch7.addConstraint(Sketcher.Constraint("Tangent", 3, 1, 0, 1))
sketch7.addConstraint(Sketcher.Constraint("Vertical", 0))
sketch7.addConstraint(Sketcher.Constraint("Vertical", 2))
sketch7.addConstraint(Sketcher.Constraint("PointOnObject", 1, 3, -2))
sketch7.addConstraint(Sketcher.Constraint("Radius", 1, Q("1.5 mm")))
sketch7.addConstraint(Sketcher.Constraint("DistanceY", 0, 2, 0, 1, Q("19 mm")))
sketch7.addConstraint(Sketcher.Constraint("DistanceY", -1, 1, 1, 3, Q("26 mm")))
pocket3 = body.newObject("PartDesign::Pocket", "Pocket002")
pocket3.Profile = sketch7
pocket3.Type = "ThroughAll"
pocket3.Reversed = True

# Sketch on XZ plane
sketch8 = body.newObject("Sketcher::SketchObject", "Sketch007")
sketch8.AttachmentSupport = (doc.getObject("XZ_Plane"), [""])
sketch8.MapMode = "FlatFace"
sketch8.AttachmentOffset = App.Placement(V(0, 0, -10), App.Rotation())
sketch8.addGeometry(Part.LineSegment(V(-1.5, 36.5, 0), V(-1.5, 29.5, 0)), False)
sketch8.addGeometry(Part.ArcOfCircle(Part.Circle(V(-3.5, 29.5, 0), V(0, 0, 1), 2), math.radians(-90), math.radians(0)), False)
sketch8.addGeometry(Part.LineSegment(V(-3.5, 27.5, 0), V(-5.5, 27.5, 0)), False)
sketch8.addGeometry(Part.ArcOfCircle(Part.Circle(V(-5.5, 29.5, 0), V(0, 0, 1), 2), math.radians(-90), math.radians(0)), False)
sketch8.addGeometry(Part.LineSegment(V(-3.5, 29.5, 0), V(-3.5, 36.5, 0)), False)
sketch8.addGeometry(Part.ArcOfCircle(Part.Circle(V(-5.5, 36.5, 0), V(0, 0, 1), 2), math.radians(0), math.radians(90)), False)
sketch8.addGeometry(Part.LineSegment(V(-5.5, 38.5, 0), V(-3.5, 38.5, 0)), False)
sketch8.addGeometry(Part.ArcOfCircle(Part.Circle(V(-3.5, 36.5, 0), V(0, 0, 1), 2), math.radians(0), math.radians(90)), False)
sketch8.addGeometry(Part.LineSegment(V(-1.5, 49.5, 0), V(-1.5, 42.5, 0)), False)
sketch8.addGeometry(Part.ArcOfCircle(Part.Circle(V(-3.5, 42.5, 0), V(0, 0, 1), 2), math.radians(-90), math.radians(0)), False)
sketch8.addGeometry(Part.LineSegment(V(-3.5, 40.5, 0), V(-5.5, 40.5, 0)), False)
sketch8.addGeometry(Part.ArcOfCircle(Part.Circle(V(-5.5, 42.5, 0), V(0, 0, 1), 2), math.radians(-90), math.radians(0)), False)
sketch8.addGeometry(Part.LineSegment(V(-3.5, 42.5, 0), V(-3.5, 49.5, 0)), False)
sketch8.addGeometry(Part.ArcOfCircle(Part.Circle(V(-5.5, 49.5, 0), V(0, 0, 1), 2), math.radians(0), math.radians(90)), False)
sketch8.addGeometry(Part.LineSegment(V(-5.5, 51.5, 0), V(-3.5, 51.5, 0)), False)
sketch8.addGeometry(Part.ArcOfCircle(Part.Circle(V(-3.5, 49.5, 0), V(0, 0, 1), 2), math.radians(0), math.radians(90)), False)
sketch8.addGeometry(Part.LineSegment(V(3.5, 51.5, 0), V(5.5, 51.5, 0)), False)
sketch8.addGeometry(Part.ArcOfCircle(Part.Circle(V(5.5, 49.5, 0), V(0, 0, 1), 2), math.radians(90), math.radians(180)), False)
sketch8.addGeometry(Part.LineSegment(V(3.5, 49.5, 0), V(3.5, 42.5, 0)), False)
sketch8.addGeometry(Part.ArcOfCircle(Part.Circle(V(5.5, 42.5, 0), V(0, 0, 1), 2), math.radians(-180), math.radians(-90)), False)
sketch8.addGeometry(Part.LineSegment(V(5.5, 40.5, 0), V(3.5, 40.5, 0)), False)
sketch8.addGeometry(Part.ArcOfCircle(Part.Circle(V(3.5, 42.5, 0), V(0, 0, 1), 2), math.radians(-180), math.radians(-90)), False)
sketch8.addGeometry(Part.LineSegment(V(1.5, 42.5, 0), V(1.5, 49.5, 0)), False)
sketch8.addGeometry(Part.ArcOfCircle(Part.Circle(V(3.5, 49.5, 0), V(0, 0, 1), 2), math.radians(90), math.radians(180)), False)
sketch8.addGeometry(Part.LineSegment(V(3.5, 38.5, 0), V(5.5, 38.5, 0)), False)
sketch8.addGeometry(Part.ArcOfCircle(Part.Circle(V(5.5, 36.5, 0), V(0, 0, 1), 2), math.radians(90), math.radians(180)), False)
sketch8.addGeometry(Part.LineSegment(V(3.5, 36.5, 0), V(3.5, 29.5, 0)), False)
sketch8.addGeometry(Part.ArcOfCircle(Part.Circle(V(5.5, 29.5, 0), V(0, 0, 1), 2), math.radians(-180), math.radians(-90)), False)
sketch8.addGeometry(Part.LineSegment(V(5.5, 27.5, 0), V(3.5, 27.5, 0)), False)
sketch8.addGeometry(Part.ArcOfCircle(Part.Circle(V(3.5, 29.5, 0), V(0, 0, 1), 2), math.radians(-180), math.radians(-90)), False)
sketch8.addGeometry(Part.LineSegment(V(1.5, 29.5, 0), V(1.5, 36.5, 0)), False)
sketch8.addGeometry(Part.ArcOfCircle(Part.Circle(V(3.5, 36.5, 0), V(0, 0, 1), 2), math.radians(90), math.radians(180)), False)
sketch8.addConstraint(Sketcher.Constraint("Tangent", 0, 2, 1, 2))
sketch8.addConstraint(Sketcher.Constraint("Tangent", 1, 1, 2, 1))
sketch8.addConstraint(Sketcher.Constraint("Tangent", 2, 2, 3, 1))
sketch8.addConstraint(Sketcher.Constraint("Tangent", 3, 2, 4, 1))
sketch8.addConstraint(Sketcher.Constraint("Tangent", 4, 2, 5, 1))
sketch8.addConstraint(Sketcher.Constraint("Tangent", 5, 2, 6, 1))
sketch8.addConstraint(Sketcher.Constraint("Tangent", 6, 2, 7, 2))
sketch8.addConstraint(Sketcher.Constraint("Tangent", 7, 1, 0, 1))
sketch8.addConstraint(Sketcher.Constraint("Tangent", 8, 2, 9, 2))
sketch8.addConstraint(Sketcher.Constraint("Tangent", 9, 1, 10, 1))
sketch8.addConstraint(Sketcher.Constraint("Tangent", 10, 2, 11, 1))
sketch8.addConstraint(Sketcher.Constraint("Tangent", 11, 2, 12, 1))
sketch8.addConstraint(Sketcher.Constraint("Tangent", 12, 2, 13, 1))
sketch8.addConstraint(Sketcher.Constraint("Tangent", 13, 2, 14, 1))
sketch8.addConstraint(Sketcher.Constraint("Tangent", 14, 2, 15, 2))
sketch8.addConstraint(Sketcher.Constraint("Tangent", 15, 1, 8, 1))
sketch8.addConstraint(Sketcher.Constraint("Tangent", 16, 2, 17, 1))
sketch8.addConstraint(Sketcher.Constraint("Tangent", 17, 2, 18, 1))
sketch8.addConstraint(Sketcher.Constraint("Tangent", 18, 2, 19, 1))
sketch8.addConstraint(Sketcher.Constraint("Tangent", 19, 2, 20, 1))
sketch8.addConstraint(Sketcher.Constraint("Tangent", 20, 2, 21, 2))
sketch8.addConstraint(Sketcher.Constraint("Tangent", 21, 1, 22, 1))
sketch8.addConstraint(Sketcher.Constraint("Tangent", 22, 2, 23, 2))
sketch8.addConstraint(Sketcher.Constraint("Tangent", 23, 1, 16, 1))
sketch8.addConstraint(Sketcher.Constraint("Tangent", 24, 2, 25, 1))
sketch8.addConstraint(Sketcher.Constraint("Tangent", 25, 2, 26, 1))
sketch8.addConstraint(Sketcher.Constraint("Tangent", 26, 2, 27, 1))
sketch8.addConstraint(Sketcher.Constraint("Tangent", 27, 2, 28, 1))
sketch8.addConstraint(Sketcher.Constraint("Tangent", 28, 2, 29, 2))
sketch8.addConstraint(Sketcher.Constraint("Tangent", 29, 1, 30, 1))
sketch8.addConstraint(Sketcher.Constraint("Tangent", 30, 2, 31, 2))
sketch8.addConstraint(Sketcher.Constraint("Tangent", 31, 1, 24, 1))
sketch8.addConstraint(Sketcher.Constraint("Vertical", 0))
sketch8.addConstraint(Sketcher.Constraint("Horizontal", 2))
sketch8.addConstraint(Sketcher.Constraint("Vertical", 4))
sketch8.addConstraint(Sketcher.Constraint("Horizontal", 6))
sketch8.addConstraint(Sketcher.Constraint("Vertical", 8))
sketch8.addConstraint(Sketcher.Constraint("Horizontal", 10))
sketch8.addConstraint(Sketcher.Constraint("Vertical", 12))
sketch8.addConstraint(Sketcher.Constraint("Horizontal", 14))
sketch8.addConstraint(Sketcher.Constraint("Horizontal", 16))
sketch8.addConstraint(Sketcher.Constraint("Vertical", 18))
sketch8.addConstraint(Sketcher.Constraint("Horizontal", 20))
sketch8.addConstraint(Sketcher.Constraint("Vertical", 22))
sketch8.addConstraint(Sketcher.Constraint("Horizontal", 24))
sketch8.addConstraint(Sketcher.Constraint("Vertical", 26))
sketch8.addConstraint(Sketcher.Constraint("Horizontal", 28))
sketch8.addConstraint(Sketcher.Constraint("Vertical", 30))
sketch8.addConstraint(Sketcher.Constraint("Coincident", 3, 2, 1, 3))
sketch8.addConstraint(Sketcher.Constraint("Coincident", 4, 2, 7, 3))
sketch8.addConstraint(Sketcher.Constraint("Coincident", 11, 2, 9, 3))
sketch8.addConstraint(Sketcher.Constraint("Coincident", 12, 2, 15, 3))
sketch8.addConstraint(Sketcher.Constraint("Coincident", 17, 2, 23, 3))
sketch8.addConstraint(Sketcher.Constraint("Coincident", 18, 2, 21, 3))
sketch8.addConstraint(Sketcher.Constraint("Coincident", 25, 2, 31, 3))
sketch8.addConstraint(Sketcher.Constraint("Coincident", 26, 2, 29, 3))
sketch8.addConstraint(Sketcher.Constraint("Equal", 7, 9))
sketch8.addConstraint(Sketcher.Constraint("Equal", 15, 17))
sketch8.addConstraint(Sketcher.Constraint("Equal", 23, 25))
sketch8.addConstraint(Sketcher.Constraint("Symmetric", 13, 3, 17, 3, -2))
sketch8.addConstraint(Sketcher.Constraint("Symmetric", 5, 3, 25, 3, -2))
sketch8.addConstraint(Sketcher.Constraint("Horizontal", 11, 3, 19, 3))
sketch8.addConstraint(Sketcher.Constraint("Horizontal", 3, 3, 27, 3))
sketch8.addConstraint(Sketcher.Constraint("Vertical", 7, 3, 9, 3))
sketch8.addConstraint(Sketcher.Constraint("Equal", 4, 8))
sketch8.addConstraint(Sketcher.Constraint("Radius", 1, Q("2 mm")))
sketch8.addConstraint(Sketcher.Constraint("DistanceY", 0, 2, 0, 1, Q("7 mm")))
sketch8.addConstraint(Sketcher.Constraint("DistanceY", 7, 3, 9, 3, Q("6 mm")))
sketch8.addConstraint(Sketcher.Constraint("DistanceX", 15, 3, 17, 3, Q("9 mm")))
sketch8.addConstraint(Sketcher.Constraint("DistanceY", -1, 1, 1, 3, Q("29.5 mm")))
pad2 = body.newObject("PartDesign::Pad", "Pad001")
pad2.Profile = sketch8
pad2.Length = 10

doc.recompute()
